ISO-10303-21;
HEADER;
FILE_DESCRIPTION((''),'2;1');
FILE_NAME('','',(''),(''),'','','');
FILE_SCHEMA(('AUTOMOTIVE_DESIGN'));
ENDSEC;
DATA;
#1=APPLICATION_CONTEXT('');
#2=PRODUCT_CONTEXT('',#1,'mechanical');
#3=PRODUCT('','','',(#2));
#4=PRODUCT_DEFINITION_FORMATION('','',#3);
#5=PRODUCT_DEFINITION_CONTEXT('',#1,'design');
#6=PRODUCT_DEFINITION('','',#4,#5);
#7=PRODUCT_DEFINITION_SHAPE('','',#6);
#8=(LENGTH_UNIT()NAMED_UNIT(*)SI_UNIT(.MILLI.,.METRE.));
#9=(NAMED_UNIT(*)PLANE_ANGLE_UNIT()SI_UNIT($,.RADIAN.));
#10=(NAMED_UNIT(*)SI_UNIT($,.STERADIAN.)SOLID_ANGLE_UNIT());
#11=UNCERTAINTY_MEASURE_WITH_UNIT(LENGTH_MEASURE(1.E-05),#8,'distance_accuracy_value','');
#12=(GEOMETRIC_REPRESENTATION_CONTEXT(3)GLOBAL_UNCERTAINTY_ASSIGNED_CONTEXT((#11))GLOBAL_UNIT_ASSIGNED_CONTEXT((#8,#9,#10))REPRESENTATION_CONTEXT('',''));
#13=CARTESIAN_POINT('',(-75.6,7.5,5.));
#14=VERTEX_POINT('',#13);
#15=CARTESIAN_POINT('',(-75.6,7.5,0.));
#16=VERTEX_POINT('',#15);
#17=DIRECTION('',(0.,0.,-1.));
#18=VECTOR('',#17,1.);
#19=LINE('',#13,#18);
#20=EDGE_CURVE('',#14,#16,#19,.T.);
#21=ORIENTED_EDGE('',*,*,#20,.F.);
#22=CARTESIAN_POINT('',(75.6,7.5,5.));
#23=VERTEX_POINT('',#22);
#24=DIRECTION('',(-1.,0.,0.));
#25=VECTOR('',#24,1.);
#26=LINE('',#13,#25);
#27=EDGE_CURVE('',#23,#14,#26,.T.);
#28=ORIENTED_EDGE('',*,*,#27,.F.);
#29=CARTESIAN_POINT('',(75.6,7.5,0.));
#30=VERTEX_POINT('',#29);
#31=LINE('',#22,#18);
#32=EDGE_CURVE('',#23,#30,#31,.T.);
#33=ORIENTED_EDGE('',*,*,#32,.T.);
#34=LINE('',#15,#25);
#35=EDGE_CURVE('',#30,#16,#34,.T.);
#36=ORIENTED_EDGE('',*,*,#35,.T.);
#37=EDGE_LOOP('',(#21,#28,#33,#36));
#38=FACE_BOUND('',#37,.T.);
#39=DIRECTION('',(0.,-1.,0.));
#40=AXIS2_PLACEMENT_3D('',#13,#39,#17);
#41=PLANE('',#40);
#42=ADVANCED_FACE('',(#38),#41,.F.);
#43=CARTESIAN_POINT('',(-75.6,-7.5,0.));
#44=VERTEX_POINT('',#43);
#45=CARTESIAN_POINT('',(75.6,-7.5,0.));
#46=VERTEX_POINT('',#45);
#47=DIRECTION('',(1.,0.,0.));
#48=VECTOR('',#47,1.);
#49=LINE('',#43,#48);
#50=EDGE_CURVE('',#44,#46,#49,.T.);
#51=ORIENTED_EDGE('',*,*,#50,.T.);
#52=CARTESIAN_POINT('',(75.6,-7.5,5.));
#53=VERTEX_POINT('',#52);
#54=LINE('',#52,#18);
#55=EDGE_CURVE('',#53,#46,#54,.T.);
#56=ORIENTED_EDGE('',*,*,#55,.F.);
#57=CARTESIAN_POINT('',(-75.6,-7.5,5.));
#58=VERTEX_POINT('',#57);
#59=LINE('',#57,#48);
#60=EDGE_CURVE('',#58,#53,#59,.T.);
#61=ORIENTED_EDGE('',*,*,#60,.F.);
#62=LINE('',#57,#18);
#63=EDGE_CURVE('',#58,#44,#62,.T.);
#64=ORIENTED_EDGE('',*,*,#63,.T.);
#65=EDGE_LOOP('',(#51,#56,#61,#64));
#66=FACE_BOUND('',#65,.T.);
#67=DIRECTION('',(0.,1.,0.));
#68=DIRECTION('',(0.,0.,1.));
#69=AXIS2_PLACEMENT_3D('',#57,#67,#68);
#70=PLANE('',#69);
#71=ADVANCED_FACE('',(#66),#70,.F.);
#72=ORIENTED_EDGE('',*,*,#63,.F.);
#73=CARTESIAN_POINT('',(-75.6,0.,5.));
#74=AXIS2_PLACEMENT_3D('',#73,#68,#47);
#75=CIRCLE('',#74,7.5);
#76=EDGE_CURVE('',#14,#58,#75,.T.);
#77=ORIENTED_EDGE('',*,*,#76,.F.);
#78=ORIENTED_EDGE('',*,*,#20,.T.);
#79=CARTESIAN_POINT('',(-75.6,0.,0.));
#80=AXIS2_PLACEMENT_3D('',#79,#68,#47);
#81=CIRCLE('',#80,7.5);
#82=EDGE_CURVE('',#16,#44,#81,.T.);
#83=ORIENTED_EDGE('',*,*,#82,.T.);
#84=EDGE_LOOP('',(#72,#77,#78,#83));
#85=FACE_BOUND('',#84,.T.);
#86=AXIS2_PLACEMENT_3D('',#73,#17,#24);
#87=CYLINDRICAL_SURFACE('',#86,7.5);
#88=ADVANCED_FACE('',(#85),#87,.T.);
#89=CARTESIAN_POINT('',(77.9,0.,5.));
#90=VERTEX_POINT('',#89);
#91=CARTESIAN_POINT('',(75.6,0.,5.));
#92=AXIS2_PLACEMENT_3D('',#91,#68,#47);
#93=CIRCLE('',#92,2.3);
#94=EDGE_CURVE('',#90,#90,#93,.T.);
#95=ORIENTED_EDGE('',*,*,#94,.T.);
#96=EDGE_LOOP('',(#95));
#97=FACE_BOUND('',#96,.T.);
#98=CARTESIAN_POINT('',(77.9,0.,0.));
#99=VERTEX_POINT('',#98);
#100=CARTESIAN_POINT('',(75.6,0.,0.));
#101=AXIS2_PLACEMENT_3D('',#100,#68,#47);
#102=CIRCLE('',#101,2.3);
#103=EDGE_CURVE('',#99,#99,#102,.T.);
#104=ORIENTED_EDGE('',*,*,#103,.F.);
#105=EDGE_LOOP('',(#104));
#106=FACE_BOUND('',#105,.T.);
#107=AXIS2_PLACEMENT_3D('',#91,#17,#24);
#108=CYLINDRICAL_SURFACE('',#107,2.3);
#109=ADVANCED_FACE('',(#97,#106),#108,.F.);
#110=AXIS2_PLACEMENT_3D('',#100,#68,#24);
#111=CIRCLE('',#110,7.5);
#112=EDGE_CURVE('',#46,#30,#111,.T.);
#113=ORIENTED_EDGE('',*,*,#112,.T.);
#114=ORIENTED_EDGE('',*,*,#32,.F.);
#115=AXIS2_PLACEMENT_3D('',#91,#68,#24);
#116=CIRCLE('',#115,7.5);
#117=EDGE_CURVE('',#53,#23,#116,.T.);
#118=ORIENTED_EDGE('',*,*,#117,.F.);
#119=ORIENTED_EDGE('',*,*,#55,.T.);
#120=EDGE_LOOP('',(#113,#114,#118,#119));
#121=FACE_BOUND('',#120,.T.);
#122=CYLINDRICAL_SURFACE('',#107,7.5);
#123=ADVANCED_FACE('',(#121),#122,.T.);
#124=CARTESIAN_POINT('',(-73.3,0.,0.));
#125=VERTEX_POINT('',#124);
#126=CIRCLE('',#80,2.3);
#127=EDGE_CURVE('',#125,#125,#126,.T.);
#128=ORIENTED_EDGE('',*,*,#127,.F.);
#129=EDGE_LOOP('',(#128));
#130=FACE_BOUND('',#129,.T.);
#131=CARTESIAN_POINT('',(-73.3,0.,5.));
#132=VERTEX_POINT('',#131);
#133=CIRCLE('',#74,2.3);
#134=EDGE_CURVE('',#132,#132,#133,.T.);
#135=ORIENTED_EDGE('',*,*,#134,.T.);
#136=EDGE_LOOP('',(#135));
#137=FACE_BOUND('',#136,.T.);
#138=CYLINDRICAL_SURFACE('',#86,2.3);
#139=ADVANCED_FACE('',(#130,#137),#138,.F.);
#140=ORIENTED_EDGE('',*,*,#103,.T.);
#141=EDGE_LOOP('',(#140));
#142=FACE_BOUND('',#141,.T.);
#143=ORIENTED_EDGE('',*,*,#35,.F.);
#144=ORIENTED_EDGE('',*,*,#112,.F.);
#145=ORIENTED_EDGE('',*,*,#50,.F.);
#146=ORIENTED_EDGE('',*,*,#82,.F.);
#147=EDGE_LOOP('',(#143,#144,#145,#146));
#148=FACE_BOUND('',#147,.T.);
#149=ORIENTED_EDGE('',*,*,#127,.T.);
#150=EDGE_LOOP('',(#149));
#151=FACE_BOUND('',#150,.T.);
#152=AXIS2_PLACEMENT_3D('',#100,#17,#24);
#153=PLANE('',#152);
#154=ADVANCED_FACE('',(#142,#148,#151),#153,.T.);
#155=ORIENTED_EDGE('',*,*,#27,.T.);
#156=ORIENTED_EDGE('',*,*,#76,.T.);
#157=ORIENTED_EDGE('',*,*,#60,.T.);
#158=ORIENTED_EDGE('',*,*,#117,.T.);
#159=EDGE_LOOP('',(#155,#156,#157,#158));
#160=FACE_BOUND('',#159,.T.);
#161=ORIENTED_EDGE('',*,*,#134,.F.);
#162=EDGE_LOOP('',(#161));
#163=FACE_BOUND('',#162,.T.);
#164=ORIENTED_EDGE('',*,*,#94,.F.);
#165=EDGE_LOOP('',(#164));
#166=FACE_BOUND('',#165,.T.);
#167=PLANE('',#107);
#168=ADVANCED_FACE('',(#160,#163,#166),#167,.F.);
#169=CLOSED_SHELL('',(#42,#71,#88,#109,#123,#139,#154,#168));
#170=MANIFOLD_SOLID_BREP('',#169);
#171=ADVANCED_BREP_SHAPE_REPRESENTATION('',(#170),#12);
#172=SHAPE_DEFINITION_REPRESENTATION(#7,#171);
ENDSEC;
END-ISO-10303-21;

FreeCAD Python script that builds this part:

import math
import FreeCAD as App
import Part
import Sketcher
Q = App.Units.Quantity

doc = App.newDocument("Part")
params = doc.addObject("Spreadsheet::Sheet", "Params")
for row, (alias, value) in enumerate([
    ("sketch1_diameter", "4.6 mm"),
    ("sketch1_radius", "7.5 mm"),
    ("sketch1_width", "151.2 mm"),
    ("pad1_length", "5 mm"),
], start=1):
    params.set(f"A{row}", alias)
    params.set(f"B{row}", "=" + value)
    params.setAlias(f"B{row}", alias)

body = doc.addObject("PartDesign::Body", "Body")

# Sketch on XY plane
sketch1 = body.newObject("Sketcher::SketchObject", "Sketch")
sketch1.AttachmentSupport = (doc.getObject("XY_Plane"), [""])
sketch1.MapMode = "FlatFace"
sketch1.addGeometry([
    Part.LineSegment(App.Vector(75.6, 7.5, 0), App.Vector(-75.6, 7.5, 0)),  # 0
    Part.ArcOfCircle(Part.Circle(App.Vector(-75.6, 0, 0), App.Vector(0, 0, 1), 7.5), math.radians(90), math.radians(270)),  # 1
    Part.LineSegment(App.Vector(-75.6, -7.5, 0), App.Vector(75.6, -7.5, 0)),  # 2
    Part.ArcOfCircle(Part.Circle(App.Vector(75.6, 0, 0), App.Vector(0, 0, 1), 7.5), math.radians(-90), math.radians(90)),  # 3
    Part.Circle(App.Vector(75.6, 0, 0), App.Vector(0, 0, 1), 2.3),  # 4
    Part.Circle(App.Vector(-75.6, 0, 0), App.Vector(0, 0, 1), 2.3),  # 5
], False)
sketch1.addConstraint([
    Sketcher.Constraint("Tangent", 0, 2, 1, 1),
    Sketcher.Constraint("Tangent", 1, 2, 2, 1),
    Sketcher.Constraint("Tangent", 2, 2, 3, 1),
    Sketcher.Constraint("Tangent", 3, 2, 0, 1),
    Sketcher.Constraint("Horizontal", 0),
    Sketcher.Constraint("Horizontal", 2),
    Sketcher.Constraint("Coincident", 4, 3, 3, 3),
    Sketcher.Constraint("Coincident", 5, 3, 1, 3),
    Sketcher.Constraint("Equal", 4, 5),
    Sketcher.Constraint("Symmetric", 1, 3, 3, 3, -1, 1),
    Sketcher.Constraint("Diameter", 4, Q("4.6 mm")),
    Sketcher.Constraint("Radius", 1, Q("7.5 mm")),
    Sketcher.Constraint("DistanceX", 0, 2, 0, 1, Q("151.2 mm")),
])
sketch1.setExpression("Constraints[10]", "Params.sketch1_diameter")
sketch1.setExpression("Constraints[11]", "Params.sketch1_radius")
sketch1.setExpression("Constraints[12]", "Params.sketch1_width")
pad1 = body.newObject("PartDesign::Pad", "Pad")
pad1.Profile = sketch1
pad1.setExpression("Length", "Params.pad1_length")

doc.recompute()
